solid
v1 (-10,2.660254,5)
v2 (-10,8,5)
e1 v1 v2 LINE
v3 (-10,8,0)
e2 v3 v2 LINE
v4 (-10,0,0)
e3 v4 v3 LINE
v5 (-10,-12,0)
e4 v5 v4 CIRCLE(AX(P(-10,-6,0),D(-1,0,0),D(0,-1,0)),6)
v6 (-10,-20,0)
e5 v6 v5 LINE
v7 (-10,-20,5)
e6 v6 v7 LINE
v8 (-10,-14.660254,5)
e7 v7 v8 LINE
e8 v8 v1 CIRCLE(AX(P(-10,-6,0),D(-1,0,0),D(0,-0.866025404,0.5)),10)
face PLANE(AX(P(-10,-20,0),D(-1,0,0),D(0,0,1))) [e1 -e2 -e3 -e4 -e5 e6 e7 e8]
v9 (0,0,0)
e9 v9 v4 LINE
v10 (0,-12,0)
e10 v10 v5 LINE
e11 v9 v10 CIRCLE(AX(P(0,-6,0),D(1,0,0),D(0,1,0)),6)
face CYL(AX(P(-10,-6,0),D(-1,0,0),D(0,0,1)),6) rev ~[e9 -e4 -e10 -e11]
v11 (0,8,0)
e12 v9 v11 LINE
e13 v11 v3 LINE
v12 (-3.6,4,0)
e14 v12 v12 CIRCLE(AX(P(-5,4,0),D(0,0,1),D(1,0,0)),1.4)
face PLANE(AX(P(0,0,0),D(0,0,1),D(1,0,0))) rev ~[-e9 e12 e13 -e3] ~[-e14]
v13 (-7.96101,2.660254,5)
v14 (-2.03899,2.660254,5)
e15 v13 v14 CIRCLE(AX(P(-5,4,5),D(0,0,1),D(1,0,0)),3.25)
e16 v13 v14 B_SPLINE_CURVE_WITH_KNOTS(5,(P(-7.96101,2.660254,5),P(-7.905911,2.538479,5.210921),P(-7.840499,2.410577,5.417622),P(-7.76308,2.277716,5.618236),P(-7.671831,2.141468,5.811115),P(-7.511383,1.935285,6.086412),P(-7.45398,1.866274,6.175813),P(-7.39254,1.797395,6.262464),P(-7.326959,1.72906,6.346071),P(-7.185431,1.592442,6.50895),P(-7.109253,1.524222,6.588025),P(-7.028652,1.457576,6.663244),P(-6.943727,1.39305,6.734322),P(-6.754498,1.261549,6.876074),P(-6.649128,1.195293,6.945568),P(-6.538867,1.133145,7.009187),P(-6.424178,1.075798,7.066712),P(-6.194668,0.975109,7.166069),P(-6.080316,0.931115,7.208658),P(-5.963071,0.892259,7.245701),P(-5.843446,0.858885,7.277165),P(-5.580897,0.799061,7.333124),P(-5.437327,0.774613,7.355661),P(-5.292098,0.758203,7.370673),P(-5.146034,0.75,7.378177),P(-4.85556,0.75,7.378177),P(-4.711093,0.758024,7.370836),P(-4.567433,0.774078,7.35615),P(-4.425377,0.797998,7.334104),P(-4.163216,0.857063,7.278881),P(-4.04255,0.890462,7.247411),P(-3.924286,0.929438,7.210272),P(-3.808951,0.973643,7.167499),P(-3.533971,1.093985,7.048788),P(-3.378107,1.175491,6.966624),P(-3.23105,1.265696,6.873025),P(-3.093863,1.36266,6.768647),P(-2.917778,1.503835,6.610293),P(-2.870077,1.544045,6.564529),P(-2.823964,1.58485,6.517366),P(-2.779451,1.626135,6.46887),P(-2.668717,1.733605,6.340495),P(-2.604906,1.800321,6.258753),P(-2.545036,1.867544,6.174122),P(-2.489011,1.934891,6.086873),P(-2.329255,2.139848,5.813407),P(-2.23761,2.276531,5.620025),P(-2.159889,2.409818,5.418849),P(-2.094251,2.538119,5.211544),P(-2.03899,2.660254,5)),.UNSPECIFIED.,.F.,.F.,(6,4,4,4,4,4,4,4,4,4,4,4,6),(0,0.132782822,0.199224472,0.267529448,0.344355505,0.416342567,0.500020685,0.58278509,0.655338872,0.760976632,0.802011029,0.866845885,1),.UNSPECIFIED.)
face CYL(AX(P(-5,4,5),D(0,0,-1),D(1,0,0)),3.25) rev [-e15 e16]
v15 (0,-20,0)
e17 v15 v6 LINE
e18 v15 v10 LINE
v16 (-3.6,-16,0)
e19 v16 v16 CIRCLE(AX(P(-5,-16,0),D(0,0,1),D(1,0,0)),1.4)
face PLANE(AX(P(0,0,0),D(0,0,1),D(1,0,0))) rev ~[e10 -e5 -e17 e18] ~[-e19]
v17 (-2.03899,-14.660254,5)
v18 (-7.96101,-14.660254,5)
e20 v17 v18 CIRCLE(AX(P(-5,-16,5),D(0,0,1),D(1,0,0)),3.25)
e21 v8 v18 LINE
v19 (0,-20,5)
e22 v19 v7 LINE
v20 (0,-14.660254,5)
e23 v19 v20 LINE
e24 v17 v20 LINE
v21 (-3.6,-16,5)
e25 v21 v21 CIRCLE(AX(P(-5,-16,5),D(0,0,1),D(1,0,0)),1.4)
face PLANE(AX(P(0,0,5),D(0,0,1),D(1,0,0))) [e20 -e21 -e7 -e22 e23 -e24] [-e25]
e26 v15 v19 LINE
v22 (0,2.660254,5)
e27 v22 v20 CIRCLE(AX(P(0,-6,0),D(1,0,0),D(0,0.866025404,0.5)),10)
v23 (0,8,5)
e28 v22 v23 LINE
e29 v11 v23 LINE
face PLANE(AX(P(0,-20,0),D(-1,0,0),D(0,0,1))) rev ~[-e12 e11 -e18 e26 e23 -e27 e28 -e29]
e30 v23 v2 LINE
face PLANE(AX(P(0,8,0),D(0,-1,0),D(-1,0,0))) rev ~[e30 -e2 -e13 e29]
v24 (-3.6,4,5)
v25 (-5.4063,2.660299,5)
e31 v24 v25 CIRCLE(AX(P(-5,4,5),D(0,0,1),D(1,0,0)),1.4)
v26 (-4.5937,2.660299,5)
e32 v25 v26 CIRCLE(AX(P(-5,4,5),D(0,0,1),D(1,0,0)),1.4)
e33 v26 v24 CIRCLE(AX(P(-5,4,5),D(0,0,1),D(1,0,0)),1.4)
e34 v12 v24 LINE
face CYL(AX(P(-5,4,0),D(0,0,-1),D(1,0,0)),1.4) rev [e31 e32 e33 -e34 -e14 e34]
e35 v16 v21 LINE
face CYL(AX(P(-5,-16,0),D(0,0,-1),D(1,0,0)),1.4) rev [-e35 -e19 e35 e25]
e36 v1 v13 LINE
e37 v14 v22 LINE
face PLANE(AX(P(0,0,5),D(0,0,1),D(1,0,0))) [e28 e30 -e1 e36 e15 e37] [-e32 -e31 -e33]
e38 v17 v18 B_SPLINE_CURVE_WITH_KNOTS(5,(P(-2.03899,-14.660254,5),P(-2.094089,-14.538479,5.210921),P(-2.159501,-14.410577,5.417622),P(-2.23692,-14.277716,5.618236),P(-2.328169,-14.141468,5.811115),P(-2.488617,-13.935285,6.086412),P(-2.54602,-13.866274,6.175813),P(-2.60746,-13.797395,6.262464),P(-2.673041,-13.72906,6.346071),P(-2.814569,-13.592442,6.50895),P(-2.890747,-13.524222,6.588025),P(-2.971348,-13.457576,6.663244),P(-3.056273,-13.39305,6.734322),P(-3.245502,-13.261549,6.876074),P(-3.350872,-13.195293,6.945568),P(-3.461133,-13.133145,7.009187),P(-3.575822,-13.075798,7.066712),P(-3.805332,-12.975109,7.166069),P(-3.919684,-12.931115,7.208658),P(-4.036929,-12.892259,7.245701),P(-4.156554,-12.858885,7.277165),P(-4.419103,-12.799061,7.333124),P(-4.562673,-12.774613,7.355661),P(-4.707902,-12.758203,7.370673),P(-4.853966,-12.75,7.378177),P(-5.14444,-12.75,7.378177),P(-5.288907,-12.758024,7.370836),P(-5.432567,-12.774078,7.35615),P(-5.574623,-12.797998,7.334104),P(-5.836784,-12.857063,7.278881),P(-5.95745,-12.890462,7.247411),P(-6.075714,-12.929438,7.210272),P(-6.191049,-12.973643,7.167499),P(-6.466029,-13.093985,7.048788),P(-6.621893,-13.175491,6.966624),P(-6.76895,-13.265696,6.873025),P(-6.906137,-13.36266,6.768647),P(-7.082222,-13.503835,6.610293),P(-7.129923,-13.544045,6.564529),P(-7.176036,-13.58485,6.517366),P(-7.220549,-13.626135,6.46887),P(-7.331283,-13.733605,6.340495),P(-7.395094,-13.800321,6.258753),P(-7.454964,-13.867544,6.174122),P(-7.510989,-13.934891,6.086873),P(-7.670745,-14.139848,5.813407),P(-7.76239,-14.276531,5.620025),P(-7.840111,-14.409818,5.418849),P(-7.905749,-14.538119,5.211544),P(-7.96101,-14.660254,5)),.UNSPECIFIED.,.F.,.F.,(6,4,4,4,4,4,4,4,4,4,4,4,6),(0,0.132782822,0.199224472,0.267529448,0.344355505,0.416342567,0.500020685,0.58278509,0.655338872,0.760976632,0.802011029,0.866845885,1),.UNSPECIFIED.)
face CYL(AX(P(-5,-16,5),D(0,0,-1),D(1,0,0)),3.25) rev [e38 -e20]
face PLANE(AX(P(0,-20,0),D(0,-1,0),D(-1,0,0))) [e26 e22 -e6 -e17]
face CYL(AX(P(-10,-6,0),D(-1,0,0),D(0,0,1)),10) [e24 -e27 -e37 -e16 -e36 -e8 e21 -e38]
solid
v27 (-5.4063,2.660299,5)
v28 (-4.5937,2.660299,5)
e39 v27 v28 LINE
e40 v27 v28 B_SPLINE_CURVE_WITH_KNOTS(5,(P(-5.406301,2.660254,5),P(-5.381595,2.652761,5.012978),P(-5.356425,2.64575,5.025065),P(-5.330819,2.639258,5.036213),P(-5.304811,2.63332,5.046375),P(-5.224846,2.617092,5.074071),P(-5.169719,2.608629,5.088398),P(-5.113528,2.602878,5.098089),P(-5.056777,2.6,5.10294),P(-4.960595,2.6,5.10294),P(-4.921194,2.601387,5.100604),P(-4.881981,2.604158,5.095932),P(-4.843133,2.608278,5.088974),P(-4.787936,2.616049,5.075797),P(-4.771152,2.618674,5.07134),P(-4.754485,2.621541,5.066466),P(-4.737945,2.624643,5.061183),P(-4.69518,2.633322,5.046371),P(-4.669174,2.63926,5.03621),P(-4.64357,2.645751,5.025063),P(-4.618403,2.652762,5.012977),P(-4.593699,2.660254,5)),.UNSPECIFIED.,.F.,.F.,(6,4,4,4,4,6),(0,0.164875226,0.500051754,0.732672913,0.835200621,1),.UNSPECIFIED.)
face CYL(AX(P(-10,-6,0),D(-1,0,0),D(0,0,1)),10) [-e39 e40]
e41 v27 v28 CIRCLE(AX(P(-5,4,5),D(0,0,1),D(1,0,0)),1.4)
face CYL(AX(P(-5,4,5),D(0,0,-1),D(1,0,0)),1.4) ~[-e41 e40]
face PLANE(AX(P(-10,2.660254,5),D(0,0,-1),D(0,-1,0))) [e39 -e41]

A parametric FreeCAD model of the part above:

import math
import FreeCAD as App
import Part
import Sketcher
from FreeCAD import Vector

doc = App.newDocument("Part")
body = doc.addObject("PartDesign::Body", "Body")
body.AllowCompound = True

# Sketch on XY plane
sketch1 = body.newObject("Sketcher::SketchObject", "Sketch")
sketch1.AttachmentSupport = (doc.getObject("XY_Plane"), [""])
sketch1.MapMode = "FlatFace"
sketch1.addGeometry([
    Part.LineSegment(Vector(-10, -20, 0), Vector(0, -20, 0)),  # 0
    Part.LineSegment(Vector(0, -20, 0), Vector(0, -12, 0)),  # 1
    Part.LineSegment(Vector(0, -12, 0), Vector(-10, -12, 0)),  # 2
    Part.LineSegment(Vector(-10, -12, 0), Vector(-10, -20, 0)),  # 3
    Part.Circle(Vector(-5, -16, 0), Vector(0, 0, 1), 1.4),  # 4
    Part.LineSegment(Vector(-10, 0, 0), Vector(0, 0, 0)),  # 5
    Part.LineSegment(Vector(0, 0, 0), Vector(0, 8, 0)),  # 6
    Part.LineSegment(Vector(0, 8, 0), Vector(-10, 8, 0)),  # 7
    Part.LineSegment(Vector(-10, 8, 0), Vector(-10, 0, 0)),  # 8
    Part.Circle(Vector(-5, 4, 0), Vector(0, 0, 1), 1.4),  # 9
], False)
sketch1.addConstraint([
    Sketcher.Constraint("Coincident", 0, 2, 1, 1),
    Sketcher.Constraint("Coincident", 1, 2, 2, 1),
    Sketcher.Constraint("Coincident", 2, 2, 3, 1),
    Sketcher.Constraint("Coincident", 3, 2, 0, 1),
    Sketcher.Constraint("Coincident", 5, 2, 6, 1),
    Sketcher.Constraint("Coincident", 6, 2, 7, 1),
    Sketcher.Constraint("Coincident", 7, 2, 8, 1),
    Sketcher.Constraint("Coincident", 8, 2, 5, 1),
    Sketcher.Constraint("Horizontal", 0),
    Sketcher.Constraint("Vertical", 1),
    Sketcher.Constraint("Horizontal", 2),
    Sketcher.Constraint("Vertical", 3),
    Sketcher.Constraint("Horizontal", 5),
    Sketcher.Constraint("Vertical", 6),
    Sketcher.Constraint("Horizontal", 7),
    Sketcher.Constraint("Vertical", 8),
    Sketcher.Constraint("Coincident", 5, 2, -1, 1),
    Sketcher.Constraint("Equal", 4, 9),
    Sketcher.Constraint("PointOnObject", 0, 2, -2),
    Sketcher.Constraint("Vertical", 4, 3, 9, 3),
    Sketcher.Constraint("Vertical", 3, 2, 7, 2),
    Sketcher.Constraint("Equal", 3, 6),
    Sketcher.Constraint("Diameter", 4, 2.8),
    Sketcher.Constraint("DistanceX", 0, 1, 0, 2, 10.0),
    Sketcher.Constraint("DistanceY", 1, 1, 1, 2, 8.0),
    Sketcher.Constraint("DistanceX", 4, 3, -1, 1, 5.0),
    Sketcher.Constraint("DistanceY", 4, 3, -1, 1, 16.0),
    Sketcher.Constraint("DistanceY", -1, 1, 9, 3, 4.0),
    Sketcher.Constraint("DistanceY", 0, 2, -1, 1, 20.0),
])
pad1 = body.newObject("PartDesign::Pad", "Pad")
pad1.Profile = sketch1
pad1.Length = 5

# Sketch on YZ plane
sketch2 = body.newObject("Sketcher::SketchObject", "Sketch001")
sketch2.AttachmentSupport = (doc.getObject("YZ_Plane"), [""])
sketch2.MapMode = "FlatFace"
sketch2.AttachmentOffset = App.Placement(Vector(0, 0, -10), App.Rotation())
sketch2.addGeometry([
    Part.ArcOfCircle(Part.Circle(Vector(-6, 0, 0), Vector(0, 0, 1), 6), math.radians(0), math.radians(180)),  # 0
    Part.LineSegment(Vector(-12, 0, 0), Vector(-12, 5, 0)),  # 1
    Part.LineSegment(Vector(-12, 5, 0), Vector(-14.7, 5, 0)),  # 2
    Part.ArcOfCircle(Part.Circle(Vector(-6, 0, 0), Vector(0, 0, 1), 10), math.radians(30), math.radians(150)),  # 3
    Part.LineSegment(Vector(2.7, 5, 0), Vector(0, 5, 0)),  # 4
    Part.LineSegment(Vector(0, 5, 0), Vector(0, 0, 0)),  # 5
], False)
sketch2.addConstraint([
    Sketcher.Constraint("Tangent", 0, 2, 1, 1),
    Sketcher.Constraint("Coincident", 1, 2, 2, 1),
    Sketcher.Constraint("Coincident", 2, 2, 3, 2),
    Sketcher.Constraint("Coincident", 3, 1, 4, 1),
    Sketcher.Constraint("Coincident", 4, 2, 5, 1),
    Sketcher.Constraint("Tangent", 5, 2, 0, 1),
    Sketcher.Constraint("Vertical", 1),
    Sketcher.Constraint("Horizontal", 2),
    Sketcher.Constraint("Horizontal", 4),
    Sketcher.Constraint("Vertical", 5),
    Sketcher.Constraint("Coincident", 5, 2, -1, 1),
    Sketcher.Constraint("Coincident", 3, 3, 0, 3),
    Sketcher.Constraint("Horizontal", 2, 2, 3, 1),
    Sketcher.Constraint("Radius", 0, 6.0),
    Sketcher.Constraint("Radius", 3, 10.0),
    Sketcher.Constraint("DistanceY", 1, 1, 1, 2, 5.0),
])
pad2 = body.newObject("PartDesign::Pad", "Pad001")
pad2.Profile = sketch2
pad2.Length = 10

# Sketch on XY plane
sketch3 = body.newObject("Sketcher::SketchObject", "Sketch002")
sketch3.AttachmentSupport = (doc.getObject("XY_Plane"), [""])
sketch3.MapMode = "FlatFace"
sketch3.AttachmentOffset = App.Placement(Vector(0, 0, 5), App.Rotation())
sketch3.addGeometry([
    Part.LineSegment(Vector(-8, -14.7, 0), Vector(-5.4, -14.7, 0)),  # 0
    Part.ArcOfCircle(Part.Circle(Vector(-5, -16, 0), Vector(0, 0, 1), 1.4), math.radians(107), math.radians(433)),  # 1
    Part.LineSegment(Vector(-4.6, -14.7, 0), Vector(-2, -14.7, 0)),  # 2
    Part.ArcOfCircle(Part.Circle(Vector(-5, -16, 0), Vector(0, 0, 1), 3.2), math.radians(24), math.radians(156)),  # 3
    Part.LineSegment(Vector(-5.4, 2.7, 0), Vector(-8, 2.7, 0)),  # 4
    Part.ArcOfCircle(Part.Circle(Vector(-5, 4, 0), Vector(0, 0, 1), 3.2), math.radians(-156), math.radians(-24)),  # 5
    Part.LineSegment(Vector(-2, 2.7, 0), Vector(-4.6, 2.7, 0)),  # 6
    Part.ArcOfCircle(Part.Circle(Vector(-5, 4, 0), Vector(0, 0, 1), 1.4), math.radians(-107), math.radians(-73)),  # 7
], False)
sketch3.addConstraint([
    Sketcher.Constraint("Coincident", 0, 2, 1, 1),
    Sketcher.Constraint("Coincident", 1, 2, 2, 1),
    Sketcher.Constraint("Coincident", 2, 2, 3, 1),
    Sketcher.Constraint("Coincident", 3, 2, 0, 1),
    Sketcher.Constraint("Coincident", 4, 2, 5, 1),
    Sketcher.Constraint("Coincident", 5, 2, 6, 1),
    Sketcher.Constraint("Coincident", 6, 2, 7, 2),
    Sketcher.Constraint("Coincident", 7, 1, 4, 1),
    Sketcher.Constraint("Horizontal", 0),
    Sketcher.Constraint("Horizontal", 2),
    Sketcher.Constraint("Horizontal", 4),
    Sketcher.Constraint("Horizontal", 6),
    Sketcher.Constraint("Coincident", 3, 3, 1, 3),
    Sketcher.Constraint("Coincident", 7, 3, 5, 3),
    Sketcher.Constraint("Equal", 3, 5),
    Sketcher.Constraint("Equal", 1, 7),
    Sketcher.Constraint("Horizontal", 0, 2, 1, 2),
    Sketcher.Constraint("Horizontal", 4, 2, 5, 2),
    Sketcher.Constraint("Vertical", 3, 3, 5, 3),
    Sketcher.Constraint("Vertical", 3, 2, 4, 2),
    Sketcher.Constraint("Radius", 3, 3.25),
    Sketcher.Constraint("Radius", 1, 1.4),
    Sketcher.Constraint("DistanceX", 1, 3, -1, 1, 5.0),
    Sketcher.Constraint("DistanceY", 1, 3, -1, 1, 16.0),
    Sketcher.Constraint("DistanceY", -1, 1, 5, 3, 4.0),
    Sketcher.Constraint("DistanceX", 0, 1, 0, 2, 2.5547),
])
pocket1 = body.newObject("PartDesign::Pocket", "Pocket")
pocket1.Profile = sketch3
pocket1.Length = 10
pocket1.Reversed = True

doc.recompute()
